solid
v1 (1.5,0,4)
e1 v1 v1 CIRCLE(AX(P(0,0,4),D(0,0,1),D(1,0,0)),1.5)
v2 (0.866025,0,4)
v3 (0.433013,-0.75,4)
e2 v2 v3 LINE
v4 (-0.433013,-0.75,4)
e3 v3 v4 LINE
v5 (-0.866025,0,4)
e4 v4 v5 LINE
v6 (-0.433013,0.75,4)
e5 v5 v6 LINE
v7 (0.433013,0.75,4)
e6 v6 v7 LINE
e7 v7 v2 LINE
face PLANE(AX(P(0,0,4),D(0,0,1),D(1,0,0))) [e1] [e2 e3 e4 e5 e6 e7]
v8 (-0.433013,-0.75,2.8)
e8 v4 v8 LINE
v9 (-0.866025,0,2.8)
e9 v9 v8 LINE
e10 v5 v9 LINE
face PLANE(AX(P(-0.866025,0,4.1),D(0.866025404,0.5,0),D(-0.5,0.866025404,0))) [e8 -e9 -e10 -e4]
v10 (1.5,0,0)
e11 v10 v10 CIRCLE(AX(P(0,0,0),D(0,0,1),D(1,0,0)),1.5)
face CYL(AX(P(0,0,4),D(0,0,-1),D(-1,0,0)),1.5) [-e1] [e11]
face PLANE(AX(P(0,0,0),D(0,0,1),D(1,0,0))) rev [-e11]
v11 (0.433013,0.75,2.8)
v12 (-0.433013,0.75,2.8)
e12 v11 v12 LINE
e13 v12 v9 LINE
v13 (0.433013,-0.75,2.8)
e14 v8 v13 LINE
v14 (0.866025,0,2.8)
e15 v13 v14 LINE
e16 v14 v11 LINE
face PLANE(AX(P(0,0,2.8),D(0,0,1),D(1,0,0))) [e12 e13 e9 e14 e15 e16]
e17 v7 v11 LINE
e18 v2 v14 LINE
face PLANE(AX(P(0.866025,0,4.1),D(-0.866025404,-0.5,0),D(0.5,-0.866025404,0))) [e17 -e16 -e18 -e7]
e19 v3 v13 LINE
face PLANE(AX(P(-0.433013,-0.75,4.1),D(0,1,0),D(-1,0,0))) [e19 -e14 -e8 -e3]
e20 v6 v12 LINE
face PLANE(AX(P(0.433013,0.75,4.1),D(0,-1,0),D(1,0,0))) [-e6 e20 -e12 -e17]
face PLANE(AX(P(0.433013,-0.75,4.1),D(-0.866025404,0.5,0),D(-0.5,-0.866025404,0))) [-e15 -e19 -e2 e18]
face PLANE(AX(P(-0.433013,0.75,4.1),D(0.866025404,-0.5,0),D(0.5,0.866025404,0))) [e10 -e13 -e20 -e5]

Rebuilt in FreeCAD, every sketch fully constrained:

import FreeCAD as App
import Part
import Sketcher
from FreeCAD import Vector
Q = App.Units.Quantity


def add_polygon(sketch, points):
    """Adds a closed chain of lines whose ends are joined by coincident constraints."""
    first, n = sketch.GeometryCount, len(points)
    for a, b in zip(points, points[1:] + points[:1]):
        sketch.addGeometry(Part.LineSegment(App.Vector(*a, 0), App.Vector(*b, 0)), False)
    for i in range(n):
        sketch.addConstraint(Sketcher.Constraint("Coincident", first + i, 2, first + (i + 1) % n, 1))

doc = App.newDocument("Part")
body = doc.addObject("PartDesign::Body", "Body")

# Sketch on XY plane
sketch1 = doc.addObject("Sketcher::SketchObject", "Sketch")
body.addObject(sketch1)
sketch1.AttachmentSupport = (doc.XY_Plane, [""])
sketch1.MapMode = "FlatFace"
sketch1.addGeometry(Part.Circle(Vector(0, 0, 0), Vector(0, 0, 1), 1.5), False)
sketch1.addConstraint([
    Sketcher.Constraint("Coincident", 0, 3, -1, 1),
    Sketcher.Constraint("Diameter", 0, 3.0),
])
pad1 = doc.addObject("PartDesign::Pad", "Pad")
body.addObject(pad1)
pad1.Profile = sketch1
pad1.Length = 4

# Sketch on XY plane
sketch2 = doc.addObject("Sketcher::SketchObject", "Sketch001")
body.addObject(sketch2)
sketch2.AttachmentSupport = (doc.XY_Plane, [""])
sketch2.MapMode = "FlatFace"
sketch2.AttachmentOffset = App.Placement(Vector(0, 0, 2.8), App.Rotation())
add_polygon(sketch2, [(0.9, 0), (0.4, 0.8), (-0.4, 0.8), (-0.9, 0), (-0.4, -0.8), (0.4, -0.8)])  # lines 0-5
sketch2.addConstraint([
    Sketcher.Constraint("Horizontal", 1),
    Sketcher.Constraint("Horizontal", 4),
    Sketcher.Constraint("Symmetric", 0, 2, 3, 2, -1, 1),
    Sketcher.Constraint("Symmetric", 2, 2, 5, 2, -1, 1),
    Sketcher.Constraint("PointOnObject", 2, 2, -1),
    Sketcher.Constraint("Parallel", 2, 5),
    Sketcher.Constraint("Vertical", 1, 2, 3, 2),
    Sketcher.Constraint("Angle", 0, Q("120 deg")),
    Sketcher.Constraint("DistanceY", 3, 2, 1, 2, 1.5),
    Sketcher.Constraint("DistanceX", 1, 2, 1, 1, 0.866025),
])
pocket1 = doc.addObject("PartDesign::Pocket", "Pocket")
body.addObject(pocket1)
pocket1.Profile = sketch2
pocket1.Length = 1.3
pocket1.Reversed = True

doc.recompute()
